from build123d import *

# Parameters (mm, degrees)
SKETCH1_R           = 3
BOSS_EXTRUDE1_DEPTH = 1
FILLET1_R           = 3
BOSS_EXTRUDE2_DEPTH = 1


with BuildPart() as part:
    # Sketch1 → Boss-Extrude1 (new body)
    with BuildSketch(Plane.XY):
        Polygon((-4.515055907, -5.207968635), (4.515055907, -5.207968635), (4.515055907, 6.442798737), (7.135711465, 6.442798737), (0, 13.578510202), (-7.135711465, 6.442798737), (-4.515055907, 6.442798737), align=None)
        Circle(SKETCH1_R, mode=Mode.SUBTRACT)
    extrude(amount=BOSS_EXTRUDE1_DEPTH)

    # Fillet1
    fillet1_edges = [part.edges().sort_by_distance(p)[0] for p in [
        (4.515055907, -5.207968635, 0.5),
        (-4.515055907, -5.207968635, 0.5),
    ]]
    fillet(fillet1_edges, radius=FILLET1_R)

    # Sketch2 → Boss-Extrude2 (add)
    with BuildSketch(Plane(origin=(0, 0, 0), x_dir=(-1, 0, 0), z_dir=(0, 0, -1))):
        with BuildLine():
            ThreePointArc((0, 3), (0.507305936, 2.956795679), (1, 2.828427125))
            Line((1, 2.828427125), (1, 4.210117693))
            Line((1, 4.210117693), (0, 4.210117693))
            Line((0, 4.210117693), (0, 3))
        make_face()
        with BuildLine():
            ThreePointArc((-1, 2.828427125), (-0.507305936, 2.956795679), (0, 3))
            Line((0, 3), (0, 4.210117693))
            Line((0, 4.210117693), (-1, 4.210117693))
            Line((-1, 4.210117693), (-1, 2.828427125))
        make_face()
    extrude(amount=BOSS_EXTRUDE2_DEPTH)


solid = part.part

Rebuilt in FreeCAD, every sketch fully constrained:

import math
import FreeCAD as App
import Part
import Sketcher

V = App.Vector
Q = App.Units.Quantity


def edges_at(feature, points):
    """Names of the edges that pass closest to the given points."""
    edges = feature.Shape.Edges
    near = lambda p: min(range(len(edges)), key=lambda i: edges[i].distToShape(Part.Vertex(*p))[0])
    return sorted({f"Edge{near(p) + 1}" for p in points})


def add_polygon(sketch, points):
    """Adds a closed chain of lines whose ends are joined by coincident constraints."""
    first, n = sketch.GeometryCount, len(points)
    for a, b in zip(points, points[1:] + points[:1]):
        sketch.addGeometry(Part.LineSegment(App.Vector(*a, 0), App.Vector(*b, 0)), False)
    for i in range(n):
        sketch.addConstraint(Sketcher.Constraint("Coincident", first + i, 2, first + (i + 1) % n, 1))

doc = App.newDocument("Part")
body = doc.addObject("PartDesign::Body", "Body")

# Sketch on XY plane
sketch1 = body.newObject("Sketcher::SketchObject", "Sketch")
sketch1.AttachmentSupport = (doc.getObject("XY_Plane"), [""])
sketch1.MapMode = "FlatFace"
add_polygon(sketch1, [(-4.5, -5.2), (4.5, -5.2), (4.5, 6.4), (7.1, 6.4), (0, 13.6), (-7.1, 6.4), (-4.5, 6.4)])  # lines 0-6
sketch1.addGeometry(Part.Circle(V(0, 0, 0), V(0, 0, 1), 3), False)  # 7
sketch1.addConstraint(Sketcher.Constraint("Horizontal", 0))
sketch1.addConstraint(Sketcher.Constraint("Vertical", 1))
sketch1.addConstraint(Sketcher.Constraint("Horizontal", 2))
sketch1.addConstraint(Sketcher.Constraint("Horizontal", 5))
sketch1.addConstraint(Sketcher.Constraint("Vertical", 6))
sketch1.addConstraint(Sketcher.Constraint("Coincident", 7, 3, -1, 1))
sketch1.addConstraint(Sketcher.Constraint("Symmetric", 2, 2, 4, 2, -2))
sketch1.addConstraint(Sketcher.Constraint("PointOnObject", 3, 2, -2))
sketch1.addConstraint(Sketcher.Constraint("Perpendicular", 3, 4))
sketch1.addConstraint(Sketcher.Constraint("Equal", 2, 5))
sketch1.addConstraint(Sketcher.Constraint("Diameter", 7, Q("6 mm")))
sketch1.addConstraint(Sketcher.Constraint("DistanceX", 0, 1, 0, 2, Q("9.030112 mm")))
sketch1.addConstraint(Sketcher.Constraint("DistanceY", -1, 1, 1, 2, Q("6.442799 mm")))
sketch1.addConstraint(Sketcher.Constraint("Distance", 3, Q("10.09142 mm")))
sketch1.addConstraint(Sketcher.Constraint("DistanceY", 1, 1, 1, 2, Q("11.650767 mm")))
pad1 = body.newObject("PartDesign::Pad", "Pad")
pad1.Profile = sketch1
pad1.Length = 1
doc.recompute()

fillet = body.newObject("PartDesign::Fillet", "Fillet")
fillet.Base = (pad1, edges_at(pad1, [(4.515, -5.208, 0.5), (-4.515, -5.208, 0.5)]))
fillet.Radius = 3

# Sketch on XY plane
sketch2 = body.newObject("Sketcher::SketchObject", "Sketch001")
sketch2.AttachmentSupport = (doc.getObject("XY_Plane"), [""])
sketch2.MapMode = "FlatFace"
sketch2.addGeometry(Part.ArcOfCircle(Part.Circle(V(0, 0, 0), V(0, 0, 1), 3), math.radians(90), math.radians(109.47)), False)
sketch2.addGeometry(Part.LineSegment(V(-1, 2.8, 0), V(-1, 4.2, 0)), False)
sketch2.addGeometry(Part.LineSegment(V(-1, 4.2, 0), V(1, 4.2, 0)), False)
sketch2.addGeometry(Part.LineSegment(V(1, 4.2, 0), V(1, 2.8, 0)), False)
sketch2.addGeometry(Part.ArcOfCircle(Part.Circle(V(0, 0, 0), V(0, 0, 1), 3), math.radians(70.53), math.radians(90)), False)
sketch2.addConstraint(Sketcher.Constraint("Coincident", 0, 2, 1, 1))
sketch2.addConstraint(Sketcher.Constraint("Coincident", 1, 2, 2, 1))
sketch2.addConstraint(Sketcher.Constraint("Coincident", 2, 2, 3, 1))
sketch2.addConstraint(Sketcher.Constraint("Coincident", 3, 2, 4, 1))
sketch2.addConstraint(Sketcher.Constraint("Tangent", 4, 2, 0, 1))
sketch2.addConstraint(Sketcher.Constraint("Vertical", 1))
sketch2.addConstraint(Sketcher.Constraint("Horizontal", 2))
sketch2.addConstraint(Sketcher.Constraint("Vertical", 3))
sketch2.addConstraint(Sketcher.Constraint("Coincident", 0, 3, -1, 1))
sketch2.addConstraint(Sketcher.Constraint("Equal", 0, 4))
sketch2.addConstraint(Sketcher.Constraint("PointOnObject", 4, 2, -2))
sketch2.addConstraint(Sketcher.Constraint("Horizontal", 0, 2, 3, 2))
sketch2.addConstraint(Sketcher.Constraint("Radius", 0, Q("3 mm")))
sketch2.addConstraint(Sketcher.Constraint("DistanceX", 2, 1, 2, 2, Q("2 mm")))
sketch2.addConstraint(Sketcher.Constraint("DistanceY", 1, 1, 1, 2, Q("1.381691 mm")))
pad2 = body.newObject("PartDesign::Pad", "Pad001")
pad2.Profile = sketch2
pad2.Length = 1
pad2.Reversed = True

doc.recompute()
